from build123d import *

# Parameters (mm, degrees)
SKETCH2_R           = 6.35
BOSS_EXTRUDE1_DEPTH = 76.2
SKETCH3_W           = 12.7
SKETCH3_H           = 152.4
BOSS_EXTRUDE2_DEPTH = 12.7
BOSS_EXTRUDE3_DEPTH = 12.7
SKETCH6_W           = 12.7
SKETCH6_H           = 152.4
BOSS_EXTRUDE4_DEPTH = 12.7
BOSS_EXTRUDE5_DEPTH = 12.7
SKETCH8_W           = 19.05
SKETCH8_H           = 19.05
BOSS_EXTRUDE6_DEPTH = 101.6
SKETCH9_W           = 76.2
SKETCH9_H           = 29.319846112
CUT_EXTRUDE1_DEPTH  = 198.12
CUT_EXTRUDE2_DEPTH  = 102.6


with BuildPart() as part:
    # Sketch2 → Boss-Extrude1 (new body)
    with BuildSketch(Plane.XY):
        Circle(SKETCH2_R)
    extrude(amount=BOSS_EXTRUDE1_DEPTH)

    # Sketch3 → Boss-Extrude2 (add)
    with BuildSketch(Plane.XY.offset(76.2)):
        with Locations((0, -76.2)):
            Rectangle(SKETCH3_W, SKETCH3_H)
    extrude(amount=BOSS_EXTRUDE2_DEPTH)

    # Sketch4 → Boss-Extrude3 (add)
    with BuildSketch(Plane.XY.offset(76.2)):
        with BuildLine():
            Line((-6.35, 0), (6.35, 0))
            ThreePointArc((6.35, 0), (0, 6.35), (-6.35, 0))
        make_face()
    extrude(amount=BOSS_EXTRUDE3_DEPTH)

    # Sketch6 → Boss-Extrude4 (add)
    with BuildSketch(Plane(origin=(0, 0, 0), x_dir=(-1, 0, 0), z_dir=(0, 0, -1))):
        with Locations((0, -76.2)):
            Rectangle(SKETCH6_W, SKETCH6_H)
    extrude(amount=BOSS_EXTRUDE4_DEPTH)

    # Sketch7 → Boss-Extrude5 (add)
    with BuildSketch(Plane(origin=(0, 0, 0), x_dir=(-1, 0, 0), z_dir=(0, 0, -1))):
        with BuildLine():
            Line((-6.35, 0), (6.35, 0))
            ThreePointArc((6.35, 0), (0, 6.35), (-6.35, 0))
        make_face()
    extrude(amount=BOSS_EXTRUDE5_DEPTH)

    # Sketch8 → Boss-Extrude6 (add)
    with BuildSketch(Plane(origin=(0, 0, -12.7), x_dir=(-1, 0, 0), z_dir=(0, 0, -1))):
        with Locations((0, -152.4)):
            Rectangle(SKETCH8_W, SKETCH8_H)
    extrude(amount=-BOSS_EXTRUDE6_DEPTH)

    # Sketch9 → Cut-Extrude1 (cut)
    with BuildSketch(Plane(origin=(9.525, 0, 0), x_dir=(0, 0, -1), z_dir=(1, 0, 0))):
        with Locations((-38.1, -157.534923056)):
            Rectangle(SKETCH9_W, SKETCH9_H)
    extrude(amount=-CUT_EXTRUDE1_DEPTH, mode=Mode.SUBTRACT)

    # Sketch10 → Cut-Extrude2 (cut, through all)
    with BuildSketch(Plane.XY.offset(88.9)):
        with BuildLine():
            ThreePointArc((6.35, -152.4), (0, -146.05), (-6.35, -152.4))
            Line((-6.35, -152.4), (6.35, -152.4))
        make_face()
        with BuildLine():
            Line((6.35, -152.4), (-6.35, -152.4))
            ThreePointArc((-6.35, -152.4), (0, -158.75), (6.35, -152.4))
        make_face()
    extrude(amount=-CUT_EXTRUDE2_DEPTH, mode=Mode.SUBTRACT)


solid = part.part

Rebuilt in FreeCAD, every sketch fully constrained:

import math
import FreeCAD as App
import Part
import Sketcher
Q = App.Units.Quantity

doc = App.newDocument("Part")
params = doc.addObject("Spreadsheet::Sheet", "Params")
for row, (alias, value) in enumerate([
    ("sketch1_diameter", "0.5 in"),
    ("pad1_length", "3 in"),
    ("sketch2_height", "6 in"),
    ("sketch2_width", "0.5 in"),
    ("pad2_length", "0.5 in"),
    ("sketch3_radius", "0.25 in"),
    ("pad3_length", "0.5 in"),
    ("sketch4_height", "6 in"),
    ("sketch4_width", "0.5 in"),
    ("pad4_length", "0.5 in"),
    ("sketch5_radius", "0.25 in"),
    ("pad5_length", "0.5 in"),
    ("sketch6_width", "0.75 in"),
    ("pad6_length", "4 in"),
    ("sketch7_height", "3 in"),
    ("pocket1_length", "7.8 in"),
    ("sketch8_diameter", "0.5 in"),
], start=1):
    params.set(f"A{row}", alias)
    params.set(f"B{row}", "=" + value)
    params.setAlias(f"B{row}", alias)

body = doc.addObject("PartDesign::Body", "Body")

sketch1 = body.newObject("Sketcher::SketchObject", "Sketch")
sketch1.AttachmentSupport = (doc.getObject("XY_Plane"), [""])
sketch1.MapMode = "FlatFace"
sketch1.addGeometry(Part.Circle(App.Vector(0, 0, 0), App.Vector(0, 0, 1), 6), False)
sketch1.addConstraint([
    Sketcher.Constraint("Coincident", 0, 3, -1, 1),
    Sketcher.Constraint("Diameter", 0, Q("0.5 in")),
])
sketch1.setExpression("Constraints[1]", "Params.sketch1_diameter")
pad1 = body.newObject("PartDesign::Pad", "Pad")
pad1.Profile = sketch1
pad1.setExpression("Length", "Params.pad1_length")

sketch2 = body.newObject("Sketcher::SketchObject", "Sketch001")
sketch2.AttachmentSupport = (doc.getObject("XY_Plane"), [""])
sketch2.MapMode = "FlatFace"
sketch2.AttachmentOffset = App.Placement(App.Vector(0, 0, 3 * 25.4), App.Rotation())
sketch2.addGeometry([
    Part.LineSegment(App.Vector(-6, 0, 0), App.Vector(-6, -152, 0)),
    Part.LineSegment(App.Vector(-6, -152, 0), App.Vector(6, -152, 0)),
    Part.LineSegment(App.Vector(6, -152, 0), App.Vector(6, 0, 0)),
    Part.LineSegment(App.Vector(6, 0, 0), App.Vector(-6, 0, 0)),
], False)
sketch2.addConstraint([
    Sketcher.Constraint("Coincident", 0, 2, 1, 1),
    Sketcher.Constraint("Coincident", 1, 2, 2, 1),
    Sketcher.Constraint("Coincident", 2, 2, 3, 1),
    Sketcher.Constraint("Coincident", 3, 2, 0, 1),
    Sketcher.Constraint("Vertical", 0),
    Sketcher.Constraint("Horizontal", 1),
    Sketcher.Constraint("Vertical", 2),
    Sketcher.Constraint("Horizontal", 3),
    Sketcher.Constraint("Symmetric", 2, 2, 3, 2, -1, 1),
    Sketcher.Constraint("DistanceY", 0, 2, 0, 1, Q("6 in")),
    Sketcher.Constraint("DistanceX", 1, 1, 1, 2, Q("0.5 in")),
])
sketch2.setExpression("Constraints[9]", "Params.sketch2_height")
sketch2.setExpression("Constraints[10]", "Params.sketch2_width")
pad2 = body.newObject("PartDesign::Pad", "Pad001")
pad2.Profile = sketch2
pad2.setExpression("Length", "Params.pad2_length")

sketch3 = body.newObject("Sketcher::SketchObject", "Sketch002")
sketch3.AttachmentSupport = (doc.getObject("XY_Plane"), [""])
sketch3.MapMode = "FlatFace"
sketch3.AttachmentOffset = App.Placement(App.Vector(0, 0, 3 * 25.4), App.Rotation())
sketch3.addGeometry([
    Part.LineSegment(App.Vector(-6, 0, 0), App.Vector(6, 0, 0)),
    Part.ArcOfCircle(Part.Circle(App.Vector(0, 0, 0), App.Vector(0, 0, 1), 6), math.radians(0), math.radians(180)),
], False)
sketch3.addConstraint([
    Sketcher.Constraint("Coincident", 0, 1, 1, 2),
    Sketcher.Constraint("Coincident", 1, 1, 0, 2),
    Sketcher.Constraint("Horizontal", 0),
    Sketcher.Constraint("Coincident", 1, 3, -1, 1),
    Sketcher.Constraint("PointOnObject", 0, 1, -1),
    Sketcher.Constraint("Radius", 1, Q("0.25 in")),
])
sketch3.setExpression("Constraints[5]", "Params.sketch3_radius")
pad3 = body.newObject("PartDesign::Pad", "Pad002")
pad3.Profile = sketch3
pad3.setExpression("Length", "Params.pad3_length")

sketch4 = body.newObject("Sketcher::SketchObject", "Sketch003")
sketch4.AttachmentSupport = (doc.getObject("XY_Plane"), [""])
sketch4.MapMode = "FlatFace"
sketch4.addGeometry([
    Part.LineSegment(App.Vector(6, 0, 0), App.Vector(6, -152, 0)),
    Part.LineSegment(App.Vector(6, -152, 0), App.Vector(-6, -152, 0)),
    Part.LineSegment(App.Vector(-6, -152, 0), App.Vector(-6, 0, 0)),
    Part.LineSegment(App.Vector(-6, 0, 0), App.Vector(6, 0, 0)),
], False)
sketch4.addConstraint([
    Sketcher.Constraint("Coincident", 0, 2, 1, 1),
    Sketcher.Constraint("Coincident", 1, 2, 2, 1),
    Sketcher.Constraint("Coincident", 2, 2, 3, 1),
    Sketcher.Constraint("Coincident", 3, 2, 0, 1),
    Sketcher.Constraint("Vertical", 0),
    Sketcher.Constraint("Horizontal", 1),
    Sketcher.Constraint("Vertical", 2),
    Sketcher.Constraint("Horizontal", 3),
    Sketcher.Constraint("Symmetric", 2, 2, 3, 2, -1, 1),
    Sketcher.Constraint("DistanceY", 0, 2, 0, 1, Q("6 in")),
    Sketcher.Constraint("DistanceX", 1, 2, 1, 1, Q("0.5 in")),
])
sketch4.setExpression("Constraints[9]", "Params.sketch4_height")
sketch4.setExpression("Constraints[10]", "Params.sketch4_width")
pad4 = body.newObject("PartDesign::Pad", "Pad003")
pad4.Profile = sketch4
pad4.setExpression("Length", "Params.pad4_length")
pad4.Reversed = True

sketch5 = body.newObject("Sketcher::SketchObject", "Sketch004")
sketch5.AttachmentSupport = (doc.getObject("XY_Plane"), [""])
sketch5.MapMode = "FlatFace"
sketch5.addGeometry([
    Part.LineSegment(App.Vector(6, 0, 0), App.Vector(-6, 0, 0)),
    Part.ArcOfCircle(Part.Circle(App.Vector(0, 0, 0), App.Vector(0, 0, 1), 6), math.radians(0), math.radians(180)),
], False)
sketch5.addConstraint([
    Sketcher.Constraint("Coincident", 0, 1, 1, 1),
    Sketcher.Constraint("Coincident", 1, 2, 0, 2),
    Sketcher.Constraint("Horizontal", 0),
    Sketcher.Constraint("Coincident", 1, 3, -1, 1),
    Sketcher.Constraint("PointOnObject", 0, 1, -1),
    Sketcher.Constraint("Radius", 1, Q("0.25 in")),
])
sketch5.setExpression("Constraints[5]", "Params.sketch5_radius")
pad5 = body.newObject("PartDesign::Pad", "Pad004")
pad5.Profile = sketch5
pad5.setExpression("Length", "Params.pad5_length")
pad5.Reversed = True

sketch6 = body.newObject("Sketcher::SketchObject", "Sketch005")
sketch6.AttachmentSupport = (doc.getObject("XY_Plane"), [""])
sketch6.MapMode = "FlatFace"
sketch6.AttachmentOffset = App.Placement(App.Vector(0, 0, -0.5 * 25.4), App.Rotation())
sketch6.addGeometry([
    Part.LineSegment(App.Vector(10, -143, 0), App.Vector(10, -162, 0)),
    Part.LineSegment(App.Vector(10, -162, 0), App.Vector(-10, -162, 0)),
    Part.LineSegment(App.Vector(-10, -162, 0), App.Vector(-10, -143, 0)),
    Part.LineSegment(App.Vector(-10, -143, 0), App.Vector(10, -143, 0)),
], False)
sketch6.addConstraint([
    Sketcher.Constraint("Coincident", 0, 2, 1, 1),
    Sketcher.Constraint("Coincident", 1, 2, 2, 1),
    Sketcher.Constraint("Coincident", 2, 2, 3, 1),
    Sketcher.Constraint("Coincident", 3, 2, 0, 1),
    Sketcher.Constraint("Vertical", 0),
    Sketcher.Constraint("Horizontal", 1),
    Sketcher.Constraint("Vertical", 2),
    Sketcher.Constraint("Horizontal", 3),
    Sketcher.Constraint("Equal", 3, 0),
    Sketcher.Constraint("DistanceX", 1, 2, 1, 1, Q("0.75 in")),
    Sketcher.Constraint("DistanceX", -1, 1, 0, 2, Q("0.375 in")),
    Sketcher.Constraint("DistanceY", 0, 2, -1, 1, Q("6.375 in")),
])
sketch6.setExpression("Constraints[9]", "Params.sketch6_width")
pad6 = body.newObject("PartDesign::Pad", "Pad005")
pad6.Profile = sketch6
pad6.setExpression("Length", "Params.pad6_length")

sketch7 = body.newObject("Sketcher::SketchObject", "Sketch006")
sketch7.AttachmentSupport = (doc.getObject("YZ_Plane"), [""])
sketch7.MapMode = "FlatFace"
sketch7.AttachmentOffset = App.Placement(App.Vector(0, 0, 0.375 * 25.4), App.Rotation())
sketch7.addGeometry([
    Part.LineSegment(App.Vector(-143, 76, 0), App.Vector(-172, 76, 0)),
    Part.LineSegment(App.Vector(-172, 76, 0), App.Vector(-172, 0, 0)),
    Part.LineSegment(App.Vector(-172, 0, 0), App.Vector(-143, 0, 0)),
    Part.LineSegment(App.Vector(-143, 0, 0), App.Vector(-143, 76, 0)),
], False)
sketch7.addConstraint([
    Sketcher.Constraint("Coincident", 0, 2, 1, 1),
    Sketcher.Constraint("Coincident", 1, 2, 2, 1),
    Sketcher.Constraint("Coincident", 2, 2, 3, 1),
    Sketcher.Constraint("Coincident", 3, 2, 0, 1),
    Sketcher.Constraint("Horizontal", 0),
    Sketcher.Constraint("Vertical", 1),
    Sketcher.Constraint("Horizontal", 2),
    Sketcher.Constraint("Vertical", 3),
    Sketcher.Constraint("PointOnObject", 1, 2, -1),
    Sketcher.Constraint("DistanceY", 1, 2, 1, 1, Q("3 in")),
    Sketcher.Constraint("DistanceX", 2, 2, -1, 1, Q("5.625 in")),
    Sketcher.Constraint("DistanceX", 0, 2, 0, 1, 29.319846),
])
sketch7.setExpression("Constraints[9]", "Params.sketch7_height")
pocket1 = body.newObject("PartDesign::Pocket", "Pocket")
pocket1.Profile = sketch7
pocket1.setExpression("Length", "Params.pocket1_length")

sketch8 = body.newObject("Sketcher::SketchObject", "Sketch007")
sketch8.AttachmentSupport = (doc.getObject("XY_Plane"), [""])
sketch8.MapMode = "FlatFace"
sketch8.AttachmentOffset = App.Placement(App.Vector(0, 0, 3.5 * 25.4), App.Rotation())
sketch8.addGeometry(Part.Circle(App.Vector(0, -152, 0), App.Vector(0, 0, 1), 6), False)
sketch8.addConstraint([
    Sketcher.Constraint("PointOnObject", 0, 3, -2),
    Sketcher.Constraint("Diameter", 0, Q("0.5 in")),
    Sketcher.Constraint("DistanceY", 0, 3, -1, 1, Q("6 in")),
])
sketch8.setExpression("Constraints[1]", "Params.sketch8_diameter")
pocket2 = body.newObject("PartDesign::Pocket", "Pocket001")
pocket2.Profile = sketch8
pocket2.Type = "ThroughAll"

doc.recompute()
